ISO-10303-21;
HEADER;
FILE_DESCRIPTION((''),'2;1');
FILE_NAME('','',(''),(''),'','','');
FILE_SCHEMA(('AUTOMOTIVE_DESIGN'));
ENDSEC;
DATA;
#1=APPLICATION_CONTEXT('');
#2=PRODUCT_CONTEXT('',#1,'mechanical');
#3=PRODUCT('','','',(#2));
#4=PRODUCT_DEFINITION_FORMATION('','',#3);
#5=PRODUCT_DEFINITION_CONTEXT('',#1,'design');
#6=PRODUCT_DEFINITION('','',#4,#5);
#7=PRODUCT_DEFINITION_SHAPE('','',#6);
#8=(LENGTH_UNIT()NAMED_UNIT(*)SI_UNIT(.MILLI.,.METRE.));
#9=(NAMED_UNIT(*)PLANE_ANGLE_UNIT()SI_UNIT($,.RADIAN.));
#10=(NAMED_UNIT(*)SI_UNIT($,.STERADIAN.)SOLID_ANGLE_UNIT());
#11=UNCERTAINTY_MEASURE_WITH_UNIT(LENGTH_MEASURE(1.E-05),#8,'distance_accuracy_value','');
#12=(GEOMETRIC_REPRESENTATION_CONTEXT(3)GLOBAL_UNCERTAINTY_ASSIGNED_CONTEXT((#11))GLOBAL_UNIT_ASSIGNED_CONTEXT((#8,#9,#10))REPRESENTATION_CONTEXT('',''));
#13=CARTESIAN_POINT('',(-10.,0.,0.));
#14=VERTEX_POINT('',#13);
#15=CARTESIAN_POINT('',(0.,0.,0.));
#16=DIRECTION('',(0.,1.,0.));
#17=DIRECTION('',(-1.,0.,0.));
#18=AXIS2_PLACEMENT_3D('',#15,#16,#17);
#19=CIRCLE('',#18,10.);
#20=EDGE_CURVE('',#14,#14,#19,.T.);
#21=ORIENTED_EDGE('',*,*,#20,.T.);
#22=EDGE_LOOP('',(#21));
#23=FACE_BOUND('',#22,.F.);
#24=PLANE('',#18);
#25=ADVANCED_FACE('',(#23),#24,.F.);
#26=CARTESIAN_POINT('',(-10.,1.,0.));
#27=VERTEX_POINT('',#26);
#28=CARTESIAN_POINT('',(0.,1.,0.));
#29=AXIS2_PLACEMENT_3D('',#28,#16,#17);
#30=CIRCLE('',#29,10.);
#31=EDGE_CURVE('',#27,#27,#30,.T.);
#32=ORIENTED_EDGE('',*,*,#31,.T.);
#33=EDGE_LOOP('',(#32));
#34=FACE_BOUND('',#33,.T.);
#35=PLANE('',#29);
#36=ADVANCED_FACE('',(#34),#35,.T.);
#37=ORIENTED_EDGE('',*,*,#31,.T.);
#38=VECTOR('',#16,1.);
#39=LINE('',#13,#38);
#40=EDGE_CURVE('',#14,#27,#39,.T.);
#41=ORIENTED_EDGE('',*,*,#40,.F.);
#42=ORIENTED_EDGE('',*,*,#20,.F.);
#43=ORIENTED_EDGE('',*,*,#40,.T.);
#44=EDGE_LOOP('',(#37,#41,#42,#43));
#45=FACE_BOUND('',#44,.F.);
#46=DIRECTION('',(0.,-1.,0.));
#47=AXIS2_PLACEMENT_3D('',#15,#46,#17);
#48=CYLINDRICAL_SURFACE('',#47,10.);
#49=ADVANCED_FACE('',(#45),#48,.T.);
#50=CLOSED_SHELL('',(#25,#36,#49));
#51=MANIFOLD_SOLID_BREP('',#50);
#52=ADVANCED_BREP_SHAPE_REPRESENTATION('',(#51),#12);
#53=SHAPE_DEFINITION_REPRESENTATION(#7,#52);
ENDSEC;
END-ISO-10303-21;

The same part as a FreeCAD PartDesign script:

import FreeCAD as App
import Part
import Sketcher
from FreeCAD import Vector

doc = App.newDocument("Part")
params = doc.addObject("Spreadsheet::Sheet", "Params")
for row, (alias, value) in enumerate([
    ("sketch1_diameter", "20 mm"),
    ("pad1_length", "1 mm"),
], start=1):
    params.set(f"A{row}", alias)
    params.set(f"B{row}", "=" + value)
    params.setAlias(f"B{row}", alias)

body = doc.addObject("PartDesign::Body", "Body")

# Sketch on XZ plane
sketch1 = body.newObject("Sketcher::SketchObject", "Sketch")
sketch1.AttachmentSupport = (doc.getObject("XZ_Plane"), [""])
sketch1.MapMode = "FlatFace"
sketch1.addGeometry(Part.Circle(Vector(0, 0, 0), Vector(0, 0, 1), 10), False)
sketch1.addConstraint([
    Sketcher.Constraint("Coincident", 0, 3, -1, 1),
    Sketcher.Constraint("Diameter", 0, 20.0),
])
sketch1.setExpression("Constraints[1]", "Params.sketch1_diameter")
pad1 = body.newObject("PartDesign::Pad", "Pad")
pad1.Profile = sketch1
pad1.setExpression("Length", "Params.pad1_length")
pad1.Reversed = True

doc.recompute()
